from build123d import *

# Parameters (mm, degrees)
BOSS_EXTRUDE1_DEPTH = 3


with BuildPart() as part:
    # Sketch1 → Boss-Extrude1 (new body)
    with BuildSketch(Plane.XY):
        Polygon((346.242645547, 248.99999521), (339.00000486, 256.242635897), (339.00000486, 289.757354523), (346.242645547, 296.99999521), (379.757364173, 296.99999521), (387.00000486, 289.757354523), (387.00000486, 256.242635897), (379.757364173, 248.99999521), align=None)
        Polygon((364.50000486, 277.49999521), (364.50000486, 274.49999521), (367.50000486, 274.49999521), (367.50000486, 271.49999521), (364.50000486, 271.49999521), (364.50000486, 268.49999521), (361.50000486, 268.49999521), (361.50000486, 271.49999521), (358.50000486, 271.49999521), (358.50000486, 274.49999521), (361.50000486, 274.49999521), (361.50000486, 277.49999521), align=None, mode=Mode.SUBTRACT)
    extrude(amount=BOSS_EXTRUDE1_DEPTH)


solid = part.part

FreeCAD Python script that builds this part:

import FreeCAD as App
import Part
import Sketcher

V = App.Vector
Q = App.Units.Quantity

doc = App.newDocument("Part")
params = doc.addObject("Spreadsheet::Sheet", "Params")
for row, (alias, value) in enumerate([
    ("sketch1_width", "3 mm"),
    ("pad1_length", "3 mm"),
], start=1):
    params.set(f"A{row}", alias)
    params.set(f"B{row}", "=" + value)
    params.setAlias(f"B{row}", alias)

body = doc.addObject("PartDesign::Body", "Body")

sketch1 = body.newObject("Sketcher::SketchObject", "Sketch")
sketch1.AttachmentSupport = (doc.getObject("XY_Plane"), [""])
sketch1.MapMode = "FlatFace"
sketch1.addGeometry(Part.LineSegment(V(339.000005, 256.242636, 0), V(346.242646, 248.999995, 0)), False)
sketch1.addGeometry(Part.LineSegment(V(346.242646, 248.999995, 0), V(379.757364, 248.999995, 0)), False)
sketch1.addGeometry(Part.LineSegment(V(379.757364, 248.999995, 0), V(387.000005, 256.242636, 0)), False)
sketch1.addGeometry(Part.LineSegment(V(387.000005, 256.242636, 0), V(387.000005, 289.757355, 0)), False)
sketch1.addGeometry(Part.LineSegment(V(387.000005, 289.757355, 0), V(379.757364, 296.999995, 0)), False)
sketch1.addGeometry(Part.LineSegment(V(379.757364, 296.999995, 0), V(346.242646, 296.999995, 0)), False)
sketch1.addGeometry(Part.LineSegment(V(346.242646, 296.999995, 0), V(339.000005, 289.757355, 0)), False)
sketch1.addGeometry(Part.LineSegment(V(339.000005, 289.757355, 0), V(339.000005, 256.242636, 0)), False)
sketch1.addGeometry(Part.LineSegment(V(364.500005, 277.499995, 0), V(364.500005, 274.499995, 0)), False)
sketch1.addGeometry(Part.LineSegment(V(364.500005, 274.499995, 0), V(367.500005, 274.499995, 0)), False)
sketch1.addGeometry(Part.LineSegment(V(367.500005, 274.499995, 0), V(367.500005, 271.499995, 0)), False)
sketch1.addGeometry(Part.LineSegment(V(367.500005, 271.499995, 0), V(364.500005, 271.499995, 0)), False)
sketch1.addGeometry(Part.LineSegment(V(364.500005, 271.499995, 0), V(364.500005, 268.499995, 0)), False)
sketch1.addGeometry(Part.LineSegment(V(364.500005, 268.499995, 0), V(361.500005, 268.499995, 0)), False)
sketch1.addGeometry(Part.LineSegment(V(361.500005, 268.499995, 0), V(361.500005, 271.499995, 0)), False)
sketch1.addGeometry(Part.LineSegment(V(361.500005, 271.499995, 0), V(358.500005, 271.499995, 0)), False)
sketch1.addGeometry(Part.LineSegment(V(358.500005, 271.499995, 0), V(358.500005, 274.499995, 0)), False)
sketch1.addGeometry(Part.LineSegment(V(358.500005, 274.499995, 0), V(361.500005, 274.499995, 0)), False)
sketch1.addGeometry(Part.LineSegment(V(361.500005, 274.499995, 0), V(361.500005, 277.499995, 0)), False)
sketch1.addGeometry(Part.LineSegment(V(361.500005, 277.499995, 0), V(364.500005, 277.499995, 0)), False)
sketch1.addConstraint(Sketcher.Constraint("Coincident", 0, 2, 1, 1))
sketch1.addConstraint(Sketcher.Constraint("Coincident", 1, 2, 2, 1))
sketch1.addConstraint(Sketcher.Constraint("Coincident", 2, 2, 3, 1))
sketch1.addConstraint(Sketcher.Constraint("Coincident", 3, 2, 4, 1))
sketch1.addConstraint(Sketcher.Constraint("Coincident", 4, 2, 5, 1))
sketch1.addConstraint(Sketcher.Constraint("Coincident", 5, 2, 6, 1))
sketch1.addConstraint(Sketcher.Constraint("Coincident", 6, 2, 7, 1))
sketch1.addConstraint(Sketcher.Constraint("Coincident", 7, 2, 0, 1))
sketch1.addConstraint(Sketcher.Constraint("Coincident", 8, 2, 9, 1))
sketch1.addConstraint(Sketcher.Constraint("Coincident", 9, 2, 10, 1))
sketch1.addConstraint(Sketcher.Constraint("Coincident", 10, 2, 11, 1))
sketch1.addConstraint(Sketcher.Constraint("Coincident", 11, 2, 12, 1))
sketch1.addConstraint(Sketcher.Constraint("Coincident", 12, 2, 13, 1))
sketch1.addConstraint(Sketcher.Constraint("Coincident", 13, 2, 14, 1))
sketch1.addConstraint(Sketcher.Constraint("Coincident", 14, 2, 15, 1))
sketch1.addConstraint(Sketcher.Constraint("Coincident", 15, 2, 16, 1))
sketch1.addConstraint(Sketcher.Constraint("Coincident", 16, 2, 17, 1))
sketch1.addConstraint(Sketcher.Constraint("Coincident", 17, 2, 18, 1))
sketch1.addConstraint(Sketcher.Constraint("Coincident", 18, 2, 19, 1))
sketch1.addConstraint(Sketcher.Constraint("Coincident", 19, 2, 8, 1))
sketch1.addConstraint(Sketcher.Constraint("Horizontal", 1))
sketch1.addConstraint(Sketcher.Constraint("Vertical", 3))
sketch1.addConstraint(Sketcher.Constraint("Horizontal", 5))
sketch1.addConstraint(Sketcher.Constraint("Vertical", 7))
sketch1.addConstraint(Sketcher.Constraint("Vertical", 8))
sketch1.addConstraint(Sketcher.Constraint("Horizontal", 9))
sketch1.addConstraint(Sketcher.Constraint("Vertical", 10))
sketch1.addConstraint(Sketcher.Constraint("Horizontal", 11))
sketch1.addConstraint(Sketcher.Constraint("Vertical", 12))
sketch1.addConstraint(Sketcher.Constraint("Horizontal", 13))
sketch1.addConstraint(Sketcher.Constraint("Vertical", 14))
sketch1.addConstraint(Sketcher.Constraint("Horizontal", 15))
sketch1.addConstraint(Sketcher.Constraint("Vertical", 16))
sketch1.addConstraint(Sketcher.Constraint("Horizontal", 17))
sketch1.addConstraint(Sketcher.Constraint("Vertical", 18))
sketch1.addConstraint(Sketcher.Constraint("Horizontal", 19))
sketch1.addConstraint(Sketcher.Constraint("Perpendicular", 0, 2))
sketch1.addConstraint(Sketcher.Constraint("Perpendicular", 2, 4))
sketch1.addConstraint(Sketcher.Constraint("Perpendicular", 4, 6))
sketch1.addConstraint(Sketcher.Constraint("Horizontal", 3, 2, 6, 2))
sketch1.addConstraint(Sketcher.Constraint("Horizontal", 2, 2, 7, 2))
sketch1.addConstraint(Sketcher.Constraint("Horizontal", 11, 2, 14, 2))
sketch1.addConstraint(Sketcher.Constraint("Horizontal", 9, 2, 16, 2))
sketch1.addConstraint(Sketcher.Constraint("Vertical", 1, 2, 4, 2))
sketch1.addConstraint(Sketcher.Constraint("Vertical", 0, 2, 5, 2))
sketch1.addConstraint(Sketcher.Constraint("Vertical", 8, 2, 11, 2))
sketch1.addConstraint(Sketcher.Constraint("Vertical", 14, 2, 17, 2))
sketch1.addConstraint(Sketcher.Constraint("Equal", 11, 13))
sketch1.addConstraint(Sketcher.Constraint("Equal", 13, 15))
sketch1.addConstraint(Sketcher.Constraint("Equal", 5, 3))
sketch1.addConstraint(Sketcher.Constraint("Equal", 19, 8))
sketch1.addConstraint(Sketcher.Constraint("Equal", 8, 10))
sketch1.addConstraint(Sketcher.Constraint("Equal", 10, 12))
sketch1.addConstraint(Sketcher.Constraint("DistanceX", 9, 1, 9, 2, Q("3 mm")))
sketch1.addConstraint(Sketcher.Constraint("DistanceY", 1, 2, 4, 2, Q("48 mm")))
sketch1.addConstraint(Sketcher.Constraint("DistanceX", 8, 2, 3, 2, Q("22.5 mm")))
sketch1.addConstraint(Sketcher.Constraint("DistanceY", 8, 2, 4, 2, Q("22.5 mm")))
sketch1.addConstraint(Sketcher.Constraint("DistanceX", 1, 1, 1, 2, Q("33.514719 mm")))
sketch1.addConstraint(Sketcher.Constraint("DistanceX", -1, 1, 0, 2, Q("346.242646 mm")))
sketch1.addConstraint(Sketcher.Constraint("DistanceY", -1, 1, 0, 2, Q("248.999995 mm")))
sketch1.setExpression("Constraints[53]", "Params.sketch1_width")
pad1 = body.newObject("PartDesign::Pad", "Pad")
pad1.Profile = sketch1
pad1.setExpression("Length", "Params.pad1_length")

doc.recompute()
